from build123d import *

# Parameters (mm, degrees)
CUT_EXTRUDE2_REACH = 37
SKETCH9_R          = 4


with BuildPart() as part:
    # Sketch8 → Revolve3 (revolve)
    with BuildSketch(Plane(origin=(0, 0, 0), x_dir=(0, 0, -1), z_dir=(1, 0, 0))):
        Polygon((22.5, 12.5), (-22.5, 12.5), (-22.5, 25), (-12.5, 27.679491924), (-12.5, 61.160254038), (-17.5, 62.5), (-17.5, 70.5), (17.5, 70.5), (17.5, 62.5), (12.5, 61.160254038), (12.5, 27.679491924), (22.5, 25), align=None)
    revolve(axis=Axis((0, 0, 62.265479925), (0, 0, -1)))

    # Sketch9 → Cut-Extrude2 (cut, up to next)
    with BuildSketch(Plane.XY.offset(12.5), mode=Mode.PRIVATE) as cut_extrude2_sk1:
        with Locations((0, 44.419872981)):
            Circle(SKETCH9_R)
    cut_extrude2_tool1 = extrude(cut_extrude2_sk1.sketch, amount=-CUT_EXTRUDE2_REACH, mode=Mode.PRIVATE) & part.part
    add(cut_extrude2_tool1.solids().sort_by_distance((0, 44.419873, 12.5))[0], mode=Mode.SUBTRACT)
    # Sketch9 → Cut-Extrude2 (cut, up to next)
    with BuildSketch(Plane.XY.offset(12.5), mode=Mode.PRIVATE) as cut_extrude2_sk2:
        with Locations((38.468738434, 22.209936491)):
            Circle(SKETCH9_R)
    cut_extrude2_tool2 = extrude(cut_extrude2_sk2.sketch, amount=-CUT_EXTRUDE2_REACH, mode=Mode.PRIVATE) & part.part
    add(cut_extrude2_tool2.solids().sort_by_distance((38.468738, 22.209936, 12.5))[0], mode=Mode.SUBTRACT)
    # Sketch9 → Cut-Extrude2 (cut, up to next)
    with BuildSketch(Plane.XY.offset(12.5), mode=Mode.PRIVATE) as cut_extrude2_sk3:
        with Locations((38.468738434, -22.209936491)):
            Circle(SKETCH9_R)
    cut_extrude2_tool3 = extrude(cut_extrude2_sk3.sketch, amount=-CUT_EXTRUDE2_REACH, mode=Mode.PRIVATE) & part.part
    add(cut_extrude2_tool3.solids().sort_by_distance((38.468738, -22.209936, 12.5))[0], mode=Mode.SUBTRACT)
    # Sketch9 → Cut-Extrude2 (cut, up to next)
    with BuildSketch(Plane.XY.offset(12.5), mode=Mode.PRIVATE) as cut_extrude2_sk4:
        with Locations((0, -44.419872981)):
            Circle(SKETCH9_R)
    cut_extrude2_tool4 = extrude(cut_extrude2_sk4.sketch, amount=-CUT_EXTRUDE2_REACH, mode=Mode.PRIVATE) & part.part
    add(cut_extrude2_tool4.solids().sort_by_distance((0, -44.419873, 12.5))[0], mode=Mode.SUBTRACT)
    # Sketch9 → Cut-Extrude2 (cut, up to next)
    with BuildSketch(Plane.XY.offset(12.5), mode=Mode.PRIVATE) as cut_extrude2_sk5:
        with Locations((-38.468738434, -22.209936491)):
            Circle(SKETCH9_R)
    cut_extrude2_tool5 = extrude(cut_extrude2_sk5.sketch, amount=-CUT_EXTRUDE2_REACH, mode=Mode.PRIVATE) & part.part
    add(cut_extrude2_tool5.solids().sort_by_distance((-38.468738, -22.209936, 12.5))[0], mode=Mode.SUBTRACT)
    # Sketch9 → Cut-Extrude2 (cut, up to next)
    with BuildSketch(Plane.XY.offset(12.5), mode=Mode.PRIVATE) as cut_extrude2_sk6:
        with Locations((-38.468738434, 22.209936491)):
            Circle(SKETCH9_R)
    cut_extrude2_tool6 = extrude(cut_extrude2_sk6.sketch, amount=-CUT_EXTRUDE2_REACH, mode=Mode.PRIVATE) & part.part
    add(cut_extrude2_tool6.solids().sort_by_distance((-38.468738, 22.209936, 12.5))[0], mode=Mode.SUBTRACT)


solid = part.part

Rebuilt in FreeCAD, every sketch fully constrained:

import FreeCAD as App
import Part
import Sketcher
from FreeCAD import Vector
Q = App.Units.Quantity


def add_polygon(sketch, points):
    """Adds a closed chain of lines whose ends are joined by coincident constraints."""
    first, n = sketch.GeometryCount, len(points)
    for a, b in zip(points, points[1:] + points[:1]):
        sketch.addGeometry(Part.LineSegment(App.Vector(*a, 0), App.Vector(*b, 0)), False)
    for i in range(n):
        sketch.addConstraint(Sketcher.Constraint("Coincident", first + i, 2, first + (i + 1) % n, 1))

doc = App.newDocument("Part")
params = doc.addObject("Spreadsheet::Sheet", "Params")
for row, (alias, value) in enumerate([
    ("sketch1_width", "8 mm"),
    ("sketch1_height", "45 mm"),
    ("sketch1_height2", "35 mm"),
    ("sketch1_width2", "12.5 mm"),
    ("revolution_angle", "360 deg"),
    ("sketch2_diameter", "8 mm"),
    ("sketch3_diameter", "8 mm"),
    ("sketch4_diameter", "8 mm"),
    ("sketch5_diameter", "8 mm"),
    ("sketch6_diameter", "8 mm"),
    ("sketch7_diameter", "8 mm"),
], start=1):
    params.set(f"A{row}", alias)
    params.set(f"B{row}", "=" + value)
    params.setAlias(f"B{row}", alias)

body = doc.addObject("PartDesign::Body", "Body")

# Sketch on YZ plane
sketch1 = doc.addObject("Sketcher::SketchObject", "Sketch")
body.addObject(sketch1)
sketch1.AttachmentSupport = (doc.YZ_Plane, [""])
sketch1.MapMode = "FlatFace"
add_polygon(sketch1, [(12, 22), (12, -22), (25, -22), (28, -12), (61, -12), (62, -18), (70, -18), (70, 18), (62, 18), (61, 12), (28, 12), (25, 22)])  # lines 0-11
sketch1.addConstraint([
    Sketcher.Constraint("Vertical", 0),
    Sketcher.Constraint("Horizontal", 1),
    Sketcher.Constraint("Horizontal", 3),
    Sketcher.Constraint("Horizontal", 5),
    Sketcher.Constraint("Vertical", 6),
    Sketcher.Constraint("Horizontal", 7),
    Sketcher.Constraint("Horizontal", 9),
    Sketcher.Constraint("Horizontal", 11),
    Sketcher.Constraint("Symmetric", 4, 2, 7, 2, -1),
    Sketcher.Constraint("Symmetric", 3, 2, 8, 2, -1),
    Sketcher.Constraint("Symmetric", 1, 2, 10, 2, -1),
    Sketcher.Constraint("Parallel", 2, 8),
    Sketcher.Constraint("Parallel", 4, 10),
    Sketcher.Constraint("DistanceX", 5, 1, 5, 2, Q("8 mm")),
    Sketcher.Constraint("DistanceY", 0, 2, 0, 1, Q("45 mm")),
    Sketcher.Constraint("DistanceY", 6, 1, 6, 2, Q("35 mm")),
    Sketcher.Constraint("Angle", 2, Q("75 deg")),
    Sketcher.Constraint("DistanceX", 1, 1, 1, 2, Q("12.5 mm")),
    Sketcher.Constraint("DistanceX", -1, 1, 1, 2, Q("25 mm")),
    Sketcher.Constraint("DistanceY", 1, 2, 2, 2, Q("10 mm")),
    Sketcher.Constraint("DistanceX", 0, 2, 4, 2, Q("50 mm")),
])
sketch1.setExpression("Constraints[25]", "Params.sketch1_width")
sketch1.setExpression("Constraints[26]", "Params.sketch1_height")
sketch1.setExpression("Constraints[27]", "Params.sketch1_height2")
sketch1.setExpression("Constraints[29]", "Params.sketch1_width2")
revolution = doc.addObject("PartDesign::Revolution", "Revolution")
body.addObject(revolution)
revolution.Profile = sketch1
revolution.ReferenceAxis = (sketch1, ["V_Axis"])
revolution.setExpression("Angle", "Params.revolution_angle")

# Sketch on XY plane
sketch2 = doc.addObject("Sketcher::SketchObject", "Sketch001")
body.addObject(sketch2)
sketch2.AttachmentSupport = (doc.XY_Plane, [""])
sketch2.MapMode = "FlatFace"
sketch2.AttachmentOffset = App.Placement(Vector(0, 0, 12.5), App.Rotation())
sketch2.addGeometry(Part.Circle(Vector(0, 44.4, 0), Vector(0, 0, 1), 4), False)
sketch2.addConstraint([
    Sketcher.Constraint("PointOnObject", 0, 3, -2),
    Sketcher.Constraint("Diameter", 0, Q("8 mm")),
    Sketcher.Constraint("DistanceY", -1, 1, 0, 3, Q("44.419873 mm")),
])
sketch2.setExpression("Constraints[1]", "Params.sketch2_diameter")
pocket1 = doc.addObject("PartDesign::Pocket", "Pocket")
body.addObject(pocket1)
pocket1.Profile = sketch2
pocket1.Type = "UpToFirst"

# Sketch on XY plane
sketch3 = doc.addObject("Sketcher::SketchObject", "Sketch002")
body.addObject(sketch3)
sketch3.AttachmentSupport = (doc.XY_Plane, [""])
sketch3.MapMode = "FlatFace"
sketch3.AttachmentOffset = App.Placement(Vector(0, 0, 12.5), App.Rotation())
sketch3.addGeometry(Part.Circle(Vector(38.5, 22.2, 0), Vector(0, 0, 1), 4), False)
sketch3.addConstraint([
    Sketcher.Constraint("Diameter", 0, Q("8 mm")),
    Sketcher.Constraint("DistanceX", -1, 1, 0, 3, Q("38.468738 mm")),
    Sketcher.Constraint("DistanceY", -1, 1, 0, 3, Q("22.209936 mm")),
])
sketch3.setExpression("Constraints[0]", "Params.sketch3_diameter")
pocket2 = doc.addObject("PartDesign::Pocket", "Pocket001")
body.addObject(pocket2)
pocket2.Profile = sketch3
pocket2.Type = "UpToFirst"

# Sketch on XY plane
sketch4 = doc.addObject("Sketcher::SketchObject", "Sketch003")
body.addObject(sketch4)
sketch4.AttachmentSupport = (doc.XY_Plane, [""])
sketch4.MapMode = "FlatFace"
sketch4.AttachmentOffset = App.Placement(Vector(0, 0, 12.5), App.Rotation())
sketch4.addGeometry(Part.Circle(Vector(38.5, -22.2, 0), Vector(0, 0, 1), 4), False)
sketch4.addConstraint([
    Sketcher.Constraint("Diameter", 0, Q("8 mm")),
    Sketcher.Constraint("DistanceX", -1, 1, 0, 3, Q("38.468738 mm")),
    Sketcher.Constraint("DistanceY", 0, 3, -1, 1, Q("22.209936 mm")),
])
sketch4.setExpression("Constraints[0]", "Params.sketch4_diameter")
pocket3 = doc.addObject("PartDesign::Pocket", "Pocket002")
body.addObject(pocket3)
pocket3.Profile = sketch4
pocket3.Type = "UpToFirst"

# Sketch on XY plane
sketch5 = doc.addObject("Sketcher::SketchObject", "Sketch004")
body.addObject(sketch5)
sketch5.AttachmentSupport = (doc.XY_Plane, [""])
sketch5.MapMode = "FlatFace"
sketch5.AttachmentOffset = App.Placement(Vector(0, 0, 12.5), App.Rotation())
sketch5.addGeometry(Part.Circle(Vector(0, -44.4, 0), Vector(0, 0, 1), 4), False)
sketch5.addConstraint([
    Sketcher.Constraint("PointOnObject", 0, 3, -2),
    Sketcher.Constraint("Diameter", 0, Q("8 mm")),
    Sketcher.Constraint("DistanceY", 0, 3, -1, 1, Q("44.419873 mm")),
])
sketch5.setExpression("Constraints[1]", "Params.sketch5_diameter")
pocket4 = doc.addObject("PartDesign::Pocket", "Pocket003")
body.addObject(pocket4)
pocket4.Profile = sketch5
pocket4.Type = "UpToFirst"

# Sketch on XY plane
sketch6 = doc.addObject("Sketcher::SketchObject", "Sketch005")
body.addObject(sketch6)
sketch6.AttachmentSupport = (doc.XY_Plane, [""])
sketch6.MapMode = "FlatFace"
sketch6.AttachmentOffset = App.Placement(Vector(0, 0, 12.5), App.Rotation())
sketch6.addGeometry(Part.Circle(Vector(-38.5, -22.2, 0), Vector(0, 0, 1), 4), False)
sketch6.addConstraint([
    Sketcher.Constraint("Diameter", 0, Q("8 mm")),
    Sketcher.Constraint("DistanceX", 0, 3, -1, 1, Q("38.468738 mm")),
    Sketcher.Constraint("DistanceY", 0, 3, -1, 1, Q("22.209936 mm")),
])
sketch6.setExpression("Constraints[0]", "Params.sketch6_diameter")
pocket5 = doc.addObject("PartDesign::Pocket", "Pocket004")
body.addObject(pocket5)
pocket5.Profile = sketch6
pocket5.Type = "UpToFirst"

# Sketch on XY plane
sketch7 = doc.addObject("Sketcher::SketchObject", "Sketch006")
body.addObject(sketch7)
sketch7.AttachmentSupport = (doc.XY_Plane, [""])
sketch7.MapMode = "FlatFace"
sketch7.AttachmentOffset = App.Placement(Vector(0, 0, 12.5), App.Rotation())
sketch7.addGeometry(Part.Circle(Vector(-38.5, 22.2, 0), Vector(0, 0, 1), 4), False)
sketch7.addConstraint([
    Sketcher.Constraint("Diameter", 0, Q("8 mm")),
    Sketcher.Constraint("DistanceX", 0, 3, -1, 1, Q("38.468738 mm")),
    Sketcher.Constraint("DistanceY", -1, 1, 0, 3, Q("22.209936 mm")),
])
sketch7.setExpression("Constraints[0]", "Params.sketch7_diameter")
pocket6 = doc.addObject("PartDesign::Pocket", "Pocket005")
body.addObject(pocket6)
pocket6.Profile = sketch7
pocket6.Type = "UpToFirst"

doc.recompute()
